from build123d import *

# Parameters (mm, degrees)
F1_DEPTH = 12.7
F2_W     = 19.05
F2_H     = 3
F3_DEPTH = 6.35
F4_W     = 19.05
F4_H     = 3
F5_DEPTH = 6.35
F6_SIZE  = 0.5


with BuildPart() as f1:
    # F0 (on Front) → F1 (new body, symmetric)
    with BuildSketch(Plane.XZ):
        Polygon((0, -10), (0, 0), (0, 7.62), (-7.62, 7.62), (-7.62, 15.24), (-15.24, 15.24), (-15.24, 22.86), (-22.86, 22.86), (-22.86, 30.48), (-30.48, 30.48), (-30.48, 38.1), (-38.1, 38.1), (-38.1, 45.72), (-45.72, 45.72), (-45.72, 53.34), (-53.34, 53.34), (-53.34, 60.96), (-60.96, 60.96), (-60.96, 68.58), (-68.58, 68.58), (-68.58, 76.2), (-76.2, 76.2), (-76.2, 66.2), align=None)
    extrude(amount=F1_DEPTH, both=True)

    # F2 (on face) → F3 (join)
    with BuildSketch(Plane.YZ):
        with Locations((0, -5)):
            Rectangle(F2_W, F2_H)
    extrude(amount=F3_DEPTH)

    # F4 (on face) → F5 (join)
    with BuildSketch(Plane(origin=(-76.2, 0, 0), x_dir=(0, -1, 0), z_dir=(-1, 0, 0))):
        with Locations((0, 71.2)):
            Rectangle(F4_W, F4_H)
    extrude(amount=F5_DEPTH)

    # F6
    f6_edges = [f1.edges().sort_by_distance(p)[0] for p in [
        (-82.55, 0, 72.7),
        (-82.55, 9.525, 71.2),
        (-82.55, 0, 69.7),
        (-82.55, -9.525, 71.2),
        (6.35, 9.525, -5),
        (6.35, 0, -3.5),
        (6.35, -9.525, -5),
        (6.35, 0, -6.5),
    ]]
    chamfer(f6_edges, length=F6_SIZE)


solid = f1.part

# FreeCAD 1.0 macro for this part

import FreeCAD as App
import Part
import Sketcher

V = App.Vector
Q = App.Units.Quantity


def edges_at(feature, points):
    """Names of the edges that pass closest to the given points."""
    edges = feature.Shape.Edges
    near = lambda p: min(range(len(edges)), key=lambda i: edges[i].distToShape(Part.Vertex(*p))[0])
    return sorted({f"Edge{near(p) + 1}" for p in points})

doc = App.newDocument("Part")
params = doc.addObject("Spreadsheet::Sheet", "Params")
for row, (alias, value) in enumerate([
    ("sketch1_width", "0.3 in"),
    ("pad1_length", "1 in"),
    ("sketch2_width", "0.75 in"),
    ("pad2_length", "0.25 in"),
    ("sketch3_width", "0.75 in"),
    ("pad3_length", "0.25 in"),
    ("chamfer_size", "0.5 mm"),
], start=1):
    params.set(f"A{row}", alias)
    params.set(f"B{row}", "=" + value)
    params.setAlias(f"B{row}", alias)

body = doc.addObject("PartDesign::Body", "Body")

# Sketch on XZ plane
sketch1 = doc.addObject("Sketcher::SketchObject", "Sketch")
body.addObject(sketch1)
sketch1.AttachmentSupport = (doc.XZ_Plane, [""])
sketch1.MapMode = "FlatFace"
sketch1.addGeometry([
    Part.LineSegment(V(0, -10, 0), V(0, 8, 0)),  # 0
    Part.LineSegment(V(0, 8, 0), V(-8, 8, 0)),  # 1
    Part.LineSegment(V(-8, 8, 0), V(-8, 15, 0)),  # 2
    Part.LineSegment(V(-8, 15, 0), V(-15, 15, 0)),  # 3
    Part.LineSegment(V(-15, 15, 0), V(-15, 23, 0)),  # 4
    Part.LineSegment(V(-15, 23, 0), V(-23, 23, 0)),  # 5
    Part.LineSegment(V(-23, 23, 0), V(-23, 30, 0)),  # 6
    Part.LineSegment(V(-23, 30, 0), V(-30, 30, 0)),  # 7
    Part.LineSegment(V(-30, 30, 0), V(-30, 38, 0)),  # 8
    Part.LineSegment(V(-30, 38, 0), V(-38, 38, 0)),  # 9
    Part.LineSegment(V(-38, 38, 0), V(-38, 46, 0)),  # 10
    Part.LineSegment(V(-38, 46, 0), V(-46, 46, 0)),  # 11
    Part.LineSegment(V(-46, 46, 0), V(-46, 53, 0)),  # 12
    Part.LineSegment(V(-46, 53, 0), V(-53, 53, 0)),  # 13
    Part.LineSegment(V(-53, 53, 0), V(-53, 61, 0)),  # 14
    Part.LineSegment(V(-53, 61, 0), V(-61, 61, 0)),  # 15
    Part.LineSegment(V(-61, 61, 0), V(-61, 69, 0)),  # 16
    Part.LineSegment(V(-61, 69, 0), V(-69, 69, 0)),  # 17
    Part.LineSegment(V(-69, 69, 0), V(-69, 76, 0)),  # 18
    Part.LineSegment(V(-69, 76, 0), V(-76, 76, 0)),  # 19
    Part.LineSegment(V(-76, 76, 0), V(-76, 66, 0)),  # 20
    Part.LineSegment(V(-76, 66, 0), V(0, -10, 0)),  # 21
], False)
sketch1.addConstraint([
    Sketcher.Constraint("Coincident", 0, 2, 1, 1),
    Sketcher.Constraint("Coincident", 1, 2, 2, 1),
    Sketcher.Constraint("Coincident", 2, 2, 3, 1),
    Sketcher.Constraint("Coincident", 3, 2, 4, 1),
    Sketcher.Constraint("Coincident", 4, 2, 5, 1),
    Sketcher.Constraint("Coincident", 5, 2, 6, 1),
    Sketcher.Constraint("Coincident", 6, 2, 7, 1),
    Sketcher.Constraint("Coincident", 7, 2, 8, 1),
    Sketcher.Constraint("Coincident", 8, 2, 9, 1),
    Sketcher.Constraint("Coincident", 9, 2, 10, 1),
    Sketcher.Constraint("Coincident", 10, 2, 11, 1),
    Sketcher.Constraint("Coincident", 11, 2, 12, 1),
    Sketcher.Constraint("Coincident", 12, 2, 13, 1),
    Sketcher.Constraint("Coincident", 13, 2, 14, 1),
    Sketcher.Constraint("Coincident", 14, 2, 15, 1),
    Sketcher.Constraint("Coincident", 15, 2, 16, 1),
    Sketcher.Constraint("Coincident", 16, 2, 17, 1),
    Sketcher.Constraint("Coincident", 17, 2, 18, 1),
    Sketcher.Constraint("Coincident", 18, 2, 19, 1),
    Sketcher.Constraint("Coincident", 19, 2, 20, 1),
    Sketcher.Constraint("Coincident", 20, 2, 21, 1),
    Sketcher.Constraint("Coincident", 21, 2, 0, 1),
    Sketcher.Constraint("Vertical", 0),
    Sketcher.Constraint("Horizontal", 1),
    Sketcher.Constraint("Vertical", 2),
    Sketcher.Constraint("Horizontal", 3),
    Sketcher.Constraint("Vertical", 4),
    Sketcher.Constraint("Horizontal", 5),
    Sketcher.Constraint("Vertical", 6),
    Sketcher.Constraint("Horizontal", 7),
    Sketcher.Constraint("Vertical", 8),
    Sketcher.Constraint("Horizontal", 9),
    Sketcher.Constraint("Vertical", 10),
    Sketcher.Constraint("Horizontal", 11),
    Sketcher.Constraint("Vertical", 12),
    Sketcher.Constraint("Horizontal", 13),
    Sketcher.Constraint("Vertical", 14),
    Sketcher.Constraint("Horizontal", 15),
    Sketcher.Constraint("Vertical", 16),
    Sketcher.Constraint("Horizontal", 17),
    Sketcher.Constraint("Vertical", 18),
    Sketcher.Constraint("Horizontal", 19),
    Sketcher.Constraint("Vertical", 20),
    Sketcher.Constraint("PointOnObject", 0, 2, -2),
    Sketcher.Constraint("Equal", 1, 3),
    Sketcher.Constraint("Equal", 3, 5),
    Sketcher.Constraint("Equal", 5, 7),
    Sketcher.Constraint("Equal", 7, 9),
    Sketcher.Constraint("Equal", 9, 11),
    Sketcher.Constraint("Equal", 11, 13),
    Sketcher.Constraint("Equal", 13, 15),
    Sketcher.Constraint("Equal", 15, 17),
    Sketcher.Constraint("Equal", 17, 19),
    Sketcher.Constraint("Equal", 19, 2),
    Sketcher.Constraint("Equal", 2, 4),
    Sketcher.Constraint("Equal", 4, 6),
    Sketcher.Constraint("Equal", 6, 8),
    Sketcher.Constraint("Equal", 8, 10),
    Sketcher.Constraint("Equal", 10, 12),
    Sketcher.Constraint("Equal", 12, 14),
    Sketcher.Constraint("Equal", 14, 16),
    Sketcher.Constraint("Equal", 16, 18),
    Sketcher.Constraint("DistanceX", 1, 2, 1, 1, Q("0.3 in")),
    Sketcher.Constraint("DistanceY", -1, 1, 18, 2, Q("3 in")),
    Sketcher.Constraint("Angle", 21, Q("-45 deg")),
    Sketcher.Constraint("DistanceY", 0, 1, 0, 2, Q("17.62 mm")),
])
sketch1.setExpression("Constraints[62]", "Params.sketch1_width")
pad1 = doc.addObject("PartDesign::Pad", "Pad")
body.addObject(pad1)
pad1.Profile = sketch1
pad1.setExpression("Length", "Params.pad1_length")
pad1.Midplane = True

# Sketch on YZ plane
sketch2 = doc.addObject("Sketcher::SketchObject", "Sketch001")
body.addObject(sketch2)
sketch2.AttachmentSupport = (doc.YZ_Plane, [""])
sketch2.MapMode = "FlatFace"
sketch2.addGeometry([
    Part.LineSegment(V(-9.5, -3.5, 0), V(-9.5, -6.5, 0)),
    Part.LineSegment(V(-9.5, -6.5, 0), V(9.5, -6.5, 0)),
    Part.LineSegment(V(9.5, -6.5, 0), V(9.5, -3.5, 0)),
    Part.LineSegment(V(9.5, -3.5, 0), V(-9.5, -3.5, 0)),
], False)
sketch2.addConstraint([
    Sketcher.Constraint("Coincident", 0, 2, 1, 1),
    Sketcher.Constraint("Coincident", 1, 2, 2, 1),
    Sketcher.Constraint("Coincident", 2, 2, 3, 1),
    Sketcher.Constraint("Coincident", 3, 2, 0, 1),
    Sketcher.Constraint("Vertical", 0),
    Sketcher.Constraint("Horizontal", 1),
    Sketcher.Constraint("Vertical", 2),
    Sketcher.Constraint("Horizontal", 3),
    Sketcher.Constraint("DistanceX", 1, 1, 1, 2, Q("0.75 in")),
    Sketcher.Constraint("DistanceX", 0, 2, -1, 1, Q("0.375 in")),
    Sketcher.Constraint("DistanceY", 0, 2, 0, 1, Q("3 mm")),
    Sketcher.Constraint("DistanceY", 0, 2, -1, 1, Q("6.5 mm")),
])
sketch2.setExpression("Constraints[8]", "Params.sketch2_width")
pad2 = doc.addObject("PartDesign::Pad", "Pad001")
body.addObject(pad2)
pad2.Profile = sketch2
pad2.setExpression("Length", "Params.pad2_length")

# Sketch on YZ plane
sketch3 = doc.addObject("Sketcher::SketchObject", "Sketch002")
body.addObject(sketch3)
sketch3.AttachmentSupport = (doc.YZ_Plane, [""])
sketch3.MapMode = "FlatFace"
sketch3.AttachmentOffset = App.Placement(V(0, 0, -3 * 25.4), App.Rotation())
sketch3.addGeometry([
    Part.LineSegment(V(9.5, 72.7, 0), V(9.5, 69.7, 0)),
    Part.LineSegment(V(9.5, 69.7, 0), V(-9.5, 69.7, 0)),
    Part.LineSegment(V(-9.5, 69.7, 0), V(-9.5, 72.7, 0)),
    Part.LineSegment(V(-9.5, 72.7, 0), V(9.5, 72.7, 0)),
], False)
sketch3.addConstraint([
    Sketcher.Constraint("Coincident", 0, 2, 1, 1),
    Sketcher.Constraint("Coincident", 1, 2, 2, 1),
    Sketcher.Constraint("Coincident", 2, 2, 3, 1),
    Sketcher.Constraint("Coincident", 3, 2, 0, 1),
    Sketcher.Constraint("Vertical", 0),
    Sketcher.Constraint("Horizontal", 1),
    Sketcher.Constraint("Vertical", 2),
    Sketcher.Constraint("Horizontal", 3),
    Sketcher.Constraint("DistanceX", 1, 2, 1, 1, Q("0.75 in")),
    Sketcher.Constraint("DistanceX", -1, 1, 0, 2, Q("0.375 in")),
    Sketcher.Constraint("DistanceY", 0, 2, 0, 1, Q("3 mm")),
    Sketcher.Constraint("DistanceY", -1, 1, 0, 2, Q("69.7 mm")),
])
sketch3.setExpression("Constraints[8]", "Params.sketch3_width")
pad3 = doc.addObject("PartDesign::Pad", "Pad002")
body.addObject(pad3)
pad3.Profile = sketch3
pad3.setExpression("Length", "Params.pad3_length")
pad3.Reversed = True
doc.recompute()

chamfer = doc.addObject("PartDesign::Chamfer", "Chamfer")
body.addObject(chamfer)
chamfer.Base = (pad3, edges_at(pad3, [
    (-82.55, 0, 72.7),
    (-82.55, 9.525, 71.2),
    (-82.55, 0, 69.7),
    (-82.55, -9.525, 71.2),
    (6.35, 9.525, -5),
    (6.35, 0, -3.5),
    (6.35, -9.525, -5),
    (6.35, 0, -6.5),
]))
chamfer.setExpression("Size", "Params.chamfer_size")

doc.recompute()
